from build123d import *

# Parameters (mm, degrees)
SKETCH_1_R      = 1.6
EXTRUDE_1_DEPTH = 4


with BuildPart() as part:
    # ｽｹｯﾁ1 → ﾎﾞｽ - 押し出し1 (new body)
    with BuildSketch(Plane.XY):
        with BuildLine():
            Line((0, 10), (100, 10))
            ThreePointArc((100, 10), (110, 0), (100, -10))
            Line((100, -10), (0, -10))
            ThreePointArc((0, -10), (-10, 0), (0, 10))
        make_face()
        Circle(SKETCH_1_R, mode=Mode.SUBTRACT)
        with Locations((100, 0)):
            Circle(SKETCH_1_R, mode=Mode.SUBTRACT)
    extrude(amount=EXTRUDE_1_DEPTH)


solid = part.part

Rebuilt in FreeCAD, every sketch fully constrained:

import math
import FreeCAD as App
import Part
import Sketcher
from FreeCAD import Vector

doc = App.newDocument("Part")
params = doc.addObject("Spreadsheet::Sheet", "Params")
for row, (alias, value) in enumerate([
    ("sketch1_radius", "10 mm"),
    ("sketch1_diameter", "3.2 mm"),
    ("sketch1_width", "100 mm"),
    ("pad1_length", "4 mm"),
], start=1):
    params.set(f"A{row}", alias)
    params.set(f"B{row}", "=" + value)
    params.setAlias(f"B{row}", alias)

body = doc.addObject("PartDesign::Body", "Body")

# Sketch on XY plane
sketch1 = doc.addObject("Sketcher::SketchObject", "Sketch")
body.addObject(sketch1)
sketch1.AttachmentSupport = (doc.XY_Plane, [""])
sketch1.MapMode = "FlatFace"
sketch1.addGeometry([
    Part.LineSegment(Vector(100, 10, 0), Vector(0, 10, 0)),  # 0
    Part.ArcOfCircle(Part.Circle(Vector(0, 0, 0), Vector(0, 0, 1), 10), math.radians(90), math.radians(270)),  # 1
    Part.LineSegment(Vector(0, -10, 0), Vector(100, -10, 0)),  # 2
    Part.ArcOfCircle(Part.Circle(Vector(100, 0, 0), Vector(0, 0, 1), 10), math.radians(-90), math.radians(90)),  # 3
    Part.Circle(Vector(100, 0, 0), Vector(0, 0, 1), 1.6),  # 4
    Part.Circle(Vector(0, 0, 0), Vector(0, 0, 1), 1.6),  # 5
], False)
sketch1.addConstraint([
    Sketcher.Constraint("Tangent", 0, 2, 1, 1),
    Sketcher.Constraint("Tangent", 1, 2, 2, 1),
    Sketcher.Constraint("Tangent", 2, 2, 3, 1),
    Sketcher.Constraint("Tangent", 3, 2, 0, 1),
    Sketcher.Constraint("Horizontal", 0),
    Sketcher.Constraint("Horizontal", 2),
    Sketcher.Constraint("Coincident", 1, 3, -1, 1),
    Sketcher.Constraint("Coincident", 5, 3, -1, 1),
    Sketcher.Constraint("Coincident", 4, 3, 3, 3),
    Sketcher.Constraint("Equal", 4, 5),
    Sketcher.Constraint("Radius", 1, 10.0),
    Sketcher.Constraint("Diameter", 4, 3.2),
    Sketcher.Constraint("DistanceX", 0, 2, 0, 1, 100.0),
])
sketch1.setExpression("Constraints[10]", "Params.sketch1_radius")
sketch1.setExpression("Constraints[11]", "Params.sketch1_diameter")
sketch1.setExpression("Constraints[12]", "Params.sketch1_width")
pad1 = doc.addObject("PartDesign::Pad", "Pad")
body.addObject(pad1)
pad1.Profile = sketch1
pad1.setExpression("Length", "Params.pad1_length")

doc.recompute()
